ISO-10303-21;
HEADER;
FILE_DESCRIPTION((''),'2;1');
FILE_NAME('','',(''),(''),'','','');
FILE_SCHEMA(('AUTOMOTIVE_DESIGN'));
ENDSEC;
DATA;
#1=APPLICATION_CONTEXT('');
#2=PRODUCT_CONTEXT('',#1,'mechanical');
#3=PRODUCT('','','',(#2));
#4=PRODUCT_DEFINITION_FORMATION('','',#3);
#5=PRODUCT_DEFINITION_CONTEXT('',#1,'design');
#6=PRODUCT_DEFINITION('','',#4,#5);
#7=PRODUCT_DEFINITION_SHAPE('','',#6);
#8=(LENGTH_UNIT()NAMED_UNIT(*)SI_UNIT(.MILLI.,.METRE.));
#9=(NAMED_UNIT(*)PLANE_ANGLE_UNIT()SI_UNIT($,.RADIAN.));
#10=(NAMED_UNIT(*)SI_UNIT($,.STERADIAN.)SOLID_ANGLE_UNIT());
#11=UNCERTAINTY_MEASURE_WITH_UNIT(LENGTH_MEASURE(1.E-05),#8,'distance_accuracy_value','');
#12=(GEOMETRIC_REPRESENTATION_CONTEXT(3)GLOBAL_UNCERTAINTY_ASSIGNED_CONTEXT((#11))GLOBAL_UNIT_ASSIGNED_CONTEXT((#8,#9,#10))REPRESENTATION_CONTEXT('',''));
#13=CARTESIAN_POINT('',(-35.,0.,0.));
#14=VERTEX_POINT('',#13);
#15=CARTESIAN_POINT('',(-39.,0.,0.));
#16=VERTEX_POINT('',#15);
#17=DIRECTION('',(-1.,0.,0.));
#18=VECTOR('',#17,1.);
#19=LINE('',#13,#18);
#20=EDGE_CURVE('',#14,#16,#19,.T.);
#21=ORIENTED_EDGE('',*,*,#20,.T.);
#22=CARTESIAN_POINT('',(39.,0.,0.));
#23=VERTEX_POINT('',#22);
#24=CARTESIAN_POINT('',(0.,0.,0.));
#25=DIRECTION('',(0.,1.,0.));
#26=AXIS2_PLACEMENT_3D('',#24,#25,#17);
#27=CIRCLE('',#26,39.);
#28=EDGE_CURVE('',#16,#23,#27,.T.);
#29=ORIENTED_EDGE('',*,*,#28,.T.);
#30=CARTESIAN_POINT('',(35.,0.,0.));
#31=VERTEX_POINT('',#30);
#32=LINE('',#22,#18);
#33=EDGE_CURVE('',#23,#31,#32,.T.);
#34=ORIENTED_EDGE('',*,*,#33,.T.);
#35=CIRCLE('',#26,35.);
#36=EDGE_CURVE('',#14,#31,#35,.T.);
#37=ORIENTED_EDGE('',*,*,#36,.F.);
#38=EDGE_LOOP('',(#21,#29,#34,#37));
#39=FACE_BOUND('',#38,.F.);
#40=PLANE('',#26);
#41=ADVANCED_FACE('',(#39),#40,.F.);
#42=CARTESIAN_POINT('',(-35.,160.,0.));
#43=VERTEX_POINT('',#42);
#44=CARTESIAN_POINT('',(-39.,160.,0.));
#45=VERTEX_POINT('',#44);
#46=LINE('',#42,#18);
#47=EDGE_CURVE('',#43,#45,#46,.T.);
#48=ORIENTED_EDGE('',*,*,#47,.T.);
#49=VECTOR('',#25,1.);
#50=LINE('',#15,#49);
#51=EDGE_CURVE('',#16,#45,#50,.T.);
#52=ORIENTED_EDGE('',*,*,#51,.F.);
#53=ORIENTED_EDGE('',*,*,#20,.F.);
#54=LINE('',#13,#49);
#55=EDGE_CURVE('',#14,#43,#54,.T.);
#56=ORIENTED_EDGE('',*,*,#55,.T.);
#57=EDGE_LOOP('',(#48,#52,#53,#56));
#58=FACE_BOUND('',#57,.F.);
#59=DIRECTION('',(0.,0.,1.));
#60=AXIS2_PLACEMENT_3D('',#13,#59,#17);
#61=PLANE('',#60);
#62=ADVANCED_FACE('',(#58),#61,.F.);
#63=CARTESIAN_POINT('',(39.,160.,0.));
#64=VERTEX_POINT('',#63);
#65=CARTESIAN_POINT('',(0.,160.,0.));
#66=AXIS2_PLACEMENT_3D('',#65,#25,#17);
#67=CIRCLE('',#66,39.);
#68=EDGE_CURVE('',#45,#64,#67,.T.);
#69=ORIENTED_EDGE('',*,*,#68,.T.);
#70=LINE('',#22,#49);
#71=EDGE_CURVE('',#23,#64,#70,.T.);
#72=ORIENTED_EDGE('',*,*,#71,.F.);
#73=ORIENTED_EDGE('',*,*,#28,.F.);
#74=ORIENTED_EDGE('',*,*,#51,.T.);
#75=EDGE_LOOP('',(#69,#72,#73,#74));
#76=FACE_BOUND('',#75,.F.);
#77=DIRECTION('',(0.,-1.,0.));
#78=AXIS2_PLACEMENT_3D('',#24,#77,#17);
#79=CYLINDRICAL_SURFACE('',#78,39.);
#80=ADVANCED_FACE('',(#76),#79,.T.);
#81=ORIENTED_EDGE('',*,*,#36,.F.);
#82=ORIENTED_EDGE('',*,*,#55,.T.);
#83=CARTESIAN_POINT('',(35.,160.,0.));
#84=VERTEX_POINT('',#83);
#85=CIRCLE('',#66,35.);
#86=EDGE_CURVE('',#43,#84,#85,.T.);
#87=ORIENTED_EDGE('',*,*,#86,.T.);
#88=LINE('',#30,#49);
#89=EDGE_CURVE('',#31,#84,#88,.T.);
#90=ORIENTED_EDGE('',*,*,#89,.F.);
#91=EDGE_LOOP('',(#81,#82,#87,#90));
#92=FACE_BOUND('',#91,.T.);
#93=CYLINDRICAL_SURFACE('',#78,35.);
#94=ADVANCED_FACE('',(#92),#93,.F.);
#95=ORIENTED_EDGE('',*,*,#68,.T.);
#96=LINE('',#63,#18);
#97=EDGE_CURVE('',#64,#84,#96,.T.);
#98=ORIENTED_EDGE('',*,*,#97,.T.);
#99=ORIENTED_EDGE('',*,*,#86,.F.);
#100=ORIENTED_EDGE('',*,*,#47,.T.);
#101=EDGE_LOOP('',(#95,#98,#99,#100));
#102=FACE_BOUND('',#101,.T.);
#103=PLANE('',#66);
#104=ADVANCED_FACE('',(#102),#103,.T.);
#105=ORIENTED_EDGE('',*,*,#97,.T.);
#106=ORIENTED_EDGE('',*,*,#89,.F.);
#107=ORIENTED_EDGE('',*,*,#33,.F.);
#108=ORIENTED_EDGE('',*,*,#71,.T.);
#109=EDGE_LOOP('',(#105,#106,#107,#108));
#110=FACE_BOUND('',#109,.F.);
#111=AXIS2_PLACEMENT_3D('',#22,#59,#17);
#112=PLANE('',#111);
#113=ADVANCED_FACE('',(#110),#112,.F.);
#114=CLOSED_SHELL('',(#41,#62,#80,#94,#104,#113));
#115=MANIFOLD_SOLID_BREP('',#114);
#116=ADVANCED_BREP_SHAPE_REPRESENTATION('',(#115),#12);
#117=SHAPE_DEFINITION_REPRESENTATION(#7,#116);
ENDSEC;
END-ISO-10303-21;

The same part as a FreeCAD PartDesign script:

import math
import FreeCAD as App
import Part
import Sketcher
from FreeCAD import Vector
Q = App.Units.Quantity

doc = App.newDocument("Part")
body = doc.addObject("PartDesign::Body", "Body")

sketch1 = body.newObject("Sketcher::SketchObject", "Sketch")
sketch1.AttachmentSupport = (doc.getObject("XZ_Plane"), [""])
sketch1.MapMode = "FlatFace"
sketch1.addGeometry(Part.ArcOfCircle(Part.Circle(Vector(0, 0, 0), Vector(0, 0, 1), 35), math.radians(0), math.radians(180)), False)
sketch1.addGeometry(Part.LineSegment(Vector(-35, 0, 0), Vector(-39, 0, 0)), False)
sketch1.addGeometry(Part.ArcOfCircle(Part.Circle(Vector(0, 0, 0), Vector(0, 0, 1), 39), math.radians(0), math.radians(180)), False)
sketch1.addGeometry(Part.LineSegment(Vector(39, 0, 0), Vector(35, 0, 0)), False)
sketch1.addConstraint(Sketcher.Constraint("Coincident", 0, 2, 1, 1))
sketch1.addConstraint(Sketcher.Constraint("Coincident", 1, 2, 2, 2))
sketch1.addConstraint(Sketcher.Constraint("Coincident", 2, 1, 3, 1))
sketch1.addConstraint(Sketcher.Constraint("Coincident", 3, 2, 0, 1))
sketch1.addConstraint(Sketcher.Constraint("Horizontal", 1))
sketch1.addConstraint(Sketcher.Constraint("Horizontal", 3))
sketch1.addConstraint(Sketcher.Constraint("Coincident", 0, 3, -1, 1))
sketch1.addConstraint(Sketcher.Constraint("Coincident", 2, 3, -1, 1))
sketch1.addConstraint(Sketcher.Constraint("PointOnObject", 0, 2, -1))
sketch1.addConstraint(Sketcher.Constraint("PointOnObject", 2, 1, -1))
sketch1.addConstraint(Sketcher.Constraint("Radius", 0, Q("35 mm")))
sketch1.addConstraint(Sketcher.Constraint("Radius", 2, Q("39 mm")))
pad1 = body.newObject("PartDesign::Pad", "Pad")
pad1.Profile = sketch1
pad1.Length = 160
pad1.Reversed = True

doc.recompute()
